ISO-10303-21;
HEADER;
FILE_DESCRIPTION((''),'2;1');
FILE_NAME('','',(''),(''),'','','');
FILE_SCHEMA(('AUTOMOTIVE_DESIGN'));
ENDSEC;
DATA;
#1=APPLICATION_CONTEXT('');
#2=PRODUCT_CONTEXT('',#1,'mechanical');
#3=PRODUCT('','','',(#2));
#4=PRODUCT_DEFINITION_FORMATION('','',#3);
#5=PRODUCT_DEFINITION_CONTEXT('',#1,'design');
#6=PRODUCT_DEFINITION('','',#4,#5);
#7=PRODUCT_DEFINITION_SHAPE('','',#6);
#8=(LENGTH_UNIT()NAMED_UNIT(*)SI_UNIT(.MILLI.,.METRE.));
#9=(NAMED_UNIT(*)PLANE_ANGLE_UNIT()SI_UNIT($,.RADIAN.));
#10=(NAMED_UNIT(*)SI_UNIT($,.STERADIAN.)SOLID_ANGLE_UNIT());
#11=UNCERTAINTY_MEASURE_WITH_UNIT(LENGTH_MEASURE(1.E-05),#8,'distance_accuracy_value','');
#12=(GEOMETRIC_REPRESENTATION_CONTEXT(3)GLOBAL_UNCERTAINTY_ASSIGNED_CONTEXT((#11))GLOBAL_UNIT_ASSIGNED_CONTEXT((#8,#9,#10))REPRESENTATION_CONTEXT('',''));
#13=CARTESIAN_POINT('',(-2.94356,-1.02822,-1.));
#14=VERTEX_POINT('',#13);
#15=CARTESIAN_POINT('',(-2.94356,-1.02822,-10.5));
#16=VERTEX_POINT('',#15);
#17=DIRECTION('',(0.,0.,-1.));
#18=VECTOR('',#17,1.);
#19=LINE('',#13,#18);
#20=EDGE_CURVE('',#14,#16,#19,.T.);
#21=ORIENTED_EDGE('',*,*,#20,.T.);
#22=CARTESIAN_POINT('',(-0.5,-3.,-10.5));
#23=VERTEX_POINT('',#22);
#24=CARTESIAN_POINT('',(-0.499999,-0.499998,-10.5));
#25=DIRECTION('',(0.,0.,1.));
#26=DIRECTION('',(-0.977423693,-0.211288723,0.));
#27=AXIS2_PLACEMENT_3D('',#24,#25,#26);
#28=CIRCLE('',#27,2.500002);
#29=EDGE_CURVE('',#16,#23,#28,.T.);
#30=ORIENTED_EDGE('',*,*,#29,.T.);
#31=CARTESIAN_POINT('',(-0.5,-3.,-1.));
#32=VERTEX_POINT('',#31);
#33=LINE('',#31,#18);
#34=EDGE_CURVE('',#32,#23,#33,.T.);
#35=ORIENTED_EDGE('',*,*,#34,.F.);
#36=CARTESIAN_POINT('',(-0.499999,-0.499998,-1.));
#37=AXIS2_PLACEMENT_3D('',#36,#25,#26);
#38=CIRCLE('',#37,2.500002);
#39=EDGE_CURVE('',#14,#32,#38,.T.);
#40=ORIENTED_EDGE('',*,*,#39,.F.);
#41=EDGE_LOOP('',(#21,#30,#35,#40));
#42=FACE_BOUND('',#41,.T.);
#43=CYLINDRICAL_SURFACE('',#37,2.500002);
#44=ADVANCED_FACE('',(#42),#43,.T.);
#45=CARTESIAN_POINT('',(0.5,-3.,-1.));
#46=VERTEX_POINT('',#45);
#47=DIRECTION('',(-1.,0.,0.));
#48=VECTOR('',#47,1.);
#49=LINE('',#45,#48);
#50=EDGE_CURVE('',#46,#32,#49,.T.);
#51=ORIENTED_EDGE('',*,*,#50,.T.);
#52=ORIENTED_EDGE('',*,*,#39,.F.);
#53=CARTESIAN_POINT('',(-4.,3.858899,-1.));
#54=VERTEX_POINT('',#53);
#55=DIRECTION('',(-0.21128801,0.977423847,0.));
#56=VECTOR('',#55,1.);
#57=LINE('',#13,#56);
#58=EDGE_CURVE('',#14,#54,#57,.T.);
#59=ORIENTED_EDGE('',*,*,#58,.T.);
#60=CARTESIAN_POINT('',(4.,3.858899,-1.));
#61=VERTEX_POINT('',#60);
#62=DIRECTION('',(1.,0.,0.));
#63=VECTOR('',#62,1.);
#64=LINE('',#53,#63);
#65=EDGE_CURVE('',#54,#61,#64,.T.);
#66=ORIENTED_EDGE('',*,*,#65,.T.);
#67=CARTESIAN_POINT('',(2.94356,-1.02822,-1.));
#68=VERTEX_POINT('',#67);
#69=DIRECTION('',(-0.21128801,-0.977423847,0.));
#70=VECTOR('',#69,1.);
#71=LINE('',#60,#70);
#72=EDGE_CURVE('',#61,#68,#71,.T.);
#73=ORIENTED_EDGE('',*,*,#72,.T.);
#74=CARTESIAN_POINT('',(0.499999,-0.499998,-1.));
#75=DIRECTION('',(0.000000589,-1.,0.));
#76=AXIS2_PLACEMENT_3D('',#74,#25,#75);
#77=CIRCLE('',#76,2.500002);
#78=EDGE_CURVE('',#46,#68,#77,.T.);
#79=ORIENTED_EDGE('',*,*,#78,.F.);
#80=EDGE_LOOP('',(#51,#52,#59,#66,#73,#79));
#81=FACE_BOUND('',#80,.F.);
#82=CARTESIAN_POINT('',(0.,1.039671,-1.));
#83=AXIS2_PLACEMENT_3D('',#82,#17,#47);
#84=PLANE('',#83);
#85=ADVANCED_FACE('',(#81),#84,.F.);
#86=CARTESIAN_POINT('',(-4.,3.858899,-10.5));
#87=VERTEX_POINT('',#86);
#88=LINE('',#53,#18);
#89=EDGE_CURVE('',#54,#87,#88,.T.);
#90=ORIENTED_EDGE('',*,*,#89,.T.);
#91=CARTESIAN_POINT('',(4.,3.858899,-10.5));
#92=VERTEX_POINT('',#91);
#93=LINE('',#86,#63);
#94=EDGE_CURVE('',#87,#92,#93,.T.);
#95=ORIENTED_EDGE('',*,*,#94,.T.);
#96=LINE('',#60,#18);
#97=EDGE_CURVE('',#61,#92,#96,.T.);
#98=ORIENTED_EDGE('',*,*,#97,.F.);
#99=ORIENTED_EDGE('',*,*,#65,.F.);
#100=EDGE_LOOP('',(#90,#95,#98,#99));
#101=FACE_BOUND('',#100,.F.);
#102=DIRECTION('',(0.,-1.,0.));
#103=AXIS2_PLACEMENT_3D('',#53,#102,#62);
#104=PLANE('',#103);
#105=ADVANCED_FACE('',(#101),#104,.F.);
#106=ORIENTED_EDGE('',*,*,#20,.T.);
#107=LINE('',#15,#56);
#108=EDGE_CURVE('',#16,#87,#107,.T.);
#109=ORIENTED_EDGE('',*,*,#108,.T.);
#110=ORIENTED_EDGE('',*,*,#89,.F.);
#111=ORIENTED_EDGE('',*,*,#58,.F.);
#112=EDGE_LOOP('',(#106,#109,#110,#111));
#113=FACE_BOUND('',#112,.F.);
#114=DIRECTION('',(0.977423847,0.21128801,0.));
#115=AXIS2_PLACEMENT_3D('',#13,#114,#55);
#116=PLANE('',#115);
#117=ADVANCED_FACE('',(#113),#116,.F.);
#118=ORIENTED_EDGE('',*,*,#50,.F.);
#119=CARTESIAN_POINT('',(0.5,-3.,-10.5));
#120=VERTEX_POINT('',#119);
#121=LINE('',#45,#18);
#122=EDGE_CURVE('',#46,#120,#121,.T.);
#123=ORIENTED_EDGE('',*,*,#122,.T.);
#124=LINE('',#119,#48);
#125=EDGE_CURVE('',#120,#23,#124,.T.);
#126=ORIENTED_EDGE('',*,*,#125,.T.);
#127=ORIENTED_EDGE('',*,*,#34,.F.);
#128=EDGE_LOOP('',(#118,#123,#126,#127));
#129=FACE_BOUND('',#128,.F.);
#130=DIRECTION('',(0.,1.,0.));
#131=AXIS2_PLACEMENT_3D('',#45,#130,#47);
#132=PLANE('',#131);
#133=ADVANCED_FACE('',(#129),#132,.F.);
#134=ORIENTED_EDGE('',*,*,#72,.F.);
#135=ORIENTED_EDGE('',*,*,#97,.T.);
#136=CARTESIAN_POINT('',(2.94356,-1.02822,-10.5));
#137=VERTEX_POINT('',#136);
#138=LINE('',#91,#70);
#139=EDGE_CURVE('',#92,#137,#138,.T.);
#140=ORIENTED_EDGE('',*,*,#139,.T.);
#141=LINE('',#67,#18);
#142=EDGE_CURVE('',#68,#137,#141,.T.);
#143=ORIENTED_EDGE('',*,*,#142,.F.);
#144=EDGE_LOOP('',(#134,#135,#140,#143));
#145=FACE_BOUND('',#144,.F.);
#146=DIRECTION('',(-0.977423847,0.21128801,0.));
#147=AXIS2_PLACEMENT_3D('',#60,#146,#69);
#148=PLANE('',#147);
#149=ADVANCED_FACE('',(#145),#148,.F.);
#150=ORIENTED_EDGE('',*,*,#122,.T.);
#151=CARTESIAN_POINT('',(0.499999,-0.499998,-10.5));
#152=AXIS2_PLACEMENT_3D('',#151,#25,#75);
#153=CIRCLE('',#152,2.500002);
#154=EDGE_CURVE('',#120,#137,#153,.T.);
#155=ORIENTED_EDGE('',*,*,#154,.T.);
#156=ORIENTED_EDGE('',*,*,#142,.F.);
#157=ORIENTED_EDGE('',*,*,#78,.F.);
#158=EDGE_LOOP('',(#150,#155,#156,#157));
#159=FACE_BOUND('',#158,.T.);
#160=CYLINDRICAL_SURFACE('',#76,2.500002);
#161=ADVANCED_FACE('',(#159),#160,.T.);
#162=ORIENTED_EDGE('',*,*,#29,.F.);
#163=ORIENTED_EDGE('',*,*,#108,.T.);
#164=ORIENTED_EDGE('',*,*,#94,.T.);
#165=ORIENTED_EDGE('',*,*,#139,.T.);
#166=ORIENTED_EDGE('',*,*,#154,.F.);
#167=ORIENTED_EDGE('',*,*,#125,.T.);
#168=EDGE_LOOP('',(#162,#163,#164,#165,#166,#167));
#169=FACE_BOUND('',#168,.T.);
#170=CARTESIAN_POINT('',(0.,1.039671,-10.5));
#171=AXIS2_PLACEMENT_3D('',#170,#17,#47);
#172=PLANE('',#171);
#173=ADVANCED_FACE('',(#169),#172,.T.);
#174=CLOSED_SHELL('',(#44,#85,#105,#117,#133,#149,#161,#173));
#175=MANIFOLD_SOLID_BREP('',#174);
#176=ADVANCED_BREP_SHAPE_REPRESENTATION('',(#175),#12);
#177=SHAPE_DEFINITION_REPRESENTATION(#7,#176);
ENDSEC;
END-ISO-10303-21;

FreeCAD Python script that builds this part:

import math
import FreeCAD as App
import Part
import Sketcher
Q = App.Units.Quantity

doc = App.newDocument("Part")
body = doc.addObject("PartDesign::Body", "Body")

# Sketch on XY plane
sketch1 = doc.addObject("Sketcher::SketchObject", "Sketch")
body.addObject(sketch1)
sketch1.AttachmentSupport = (doc.XY_Plane, [""])
sketch1.MapMode = "FlatFace"
sketch1.AttachmentOffset = App.Placement(App.Vector(0, 0, -1), App.Rotation())
sketch1.addGeometry([
    Part.LineSegment(App.Vector(4, 3.9, 0), App.Vector(-4, 3.9, 0)),  # 0
    Part.LineSegment(App.Vector(-4, 3.9, 0), App.Vector(-2.9, -1, 0)),  # 1
    Part.ArcOfCircle(Part.Circle(App.Vector(-0.5, -0.5, 0), App.Vector(0, 0, 1), 2.5), math.radians(-168), math.radians(-90)),  # 2
    Part.LineSegment(App.Vector(-0.5, -3, 0), App.Vector(0.5, -3, 0)),  # 3
    Part.ArcOfCircle(Part.Circle(App.Vector(0.5, -0.5, 0), App.Vector(0, 0, 1), 2.5), math.radians(-90), math.radians(-12)),  # 4
    Part.LineSegment(App.Vector(2.9, -1, 0), App.Vector(4, 3.9, 0)),  # 5
], False)
sketch1.addConstraint([
    Sketcher.Constraint("Coincident", 0, 2, 1, 1),
    Sketcher.Constraint("Tangent", 1, 2, 2, 1),
    Sketcher.Constraint("Tangent", 2, 2, 3, 1),
    Sketcher.Constraint("Tangent", 3, 2, 4, 1),
    Sketcher.Constraint("Tangent", 4, 2, 5, 1),
    Sketcher.Constraint("Coincident", 5, 2, 0, 1),
    Sketcher.Constraint("Horizontal", 0),
    Sketcher.Constraint("Horizontal", 3),
    Sketcher.Constraint("Equal", 2, 4),
    Sketcher.Constraint("Symmetric", 1, 2, 4, 2, -2),
    Sketcher.Constraint("DistanceX", 0, 2, 0, 1, Q("8 mm")),
    Sketcher.Constraint("DistanceX", 3, 1, 3, 2, Q("1 mm")),
    Sketcher.Constraint("Distance", 1, Q("5 mm")),
    Sketcher.Constraint("DistanceY", 2, 2, -1, 1, Q("3 mm")),
    Sketcher.Constraint("Radius", 2, Q("2.500002 mm")),
])
pad1 = doc.addObject("PartDesign::Pad", "Pad")
body.addObject(pad1)
pad1.Profile = sketch1
pad1.Length = 9.5
pad1.Reversed = True

doc.recompute()
